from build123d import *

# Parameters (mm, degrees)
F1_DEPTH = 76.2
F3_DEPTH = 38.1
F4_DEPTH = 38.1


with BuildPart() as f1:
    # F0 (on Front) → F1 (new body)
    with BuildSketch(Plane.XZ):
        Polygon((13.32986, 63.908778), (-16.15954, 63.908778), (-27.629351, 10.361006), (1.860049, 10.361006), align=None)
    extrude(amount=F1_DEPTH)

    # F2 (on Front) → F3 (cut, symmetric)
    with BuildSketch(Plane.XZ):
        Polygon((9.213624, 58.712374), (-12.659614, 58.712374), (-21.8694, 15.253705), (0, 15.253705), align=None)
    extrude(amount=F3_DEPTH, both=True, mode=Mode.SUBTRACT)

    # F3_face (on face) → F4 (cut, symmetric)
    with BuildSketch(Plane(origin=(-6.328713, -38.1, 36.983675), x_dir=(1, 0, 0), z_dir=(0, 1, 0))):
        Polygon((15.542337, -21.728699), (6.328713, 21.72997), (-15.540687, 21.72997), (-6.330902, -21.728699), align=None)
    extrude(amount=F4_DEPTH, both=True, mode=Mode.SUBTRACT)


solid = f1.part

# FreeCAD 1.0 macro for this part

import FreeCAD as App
import Part
import Sketcher
from FreeCAD import Vector
Q = App.Units.Quantity


def add_polygon(sketch, points):
    """Adds a closed chain of lines whose ends are joined by coincident constraints."""
    first, n = sketch.GeometryCount, len(points)
    for a, b in zip(points, points[1:] + points[:1]):
        sketch.addGeometry(Part.LineSegment(App.Vector(*a, 0), App.Vector(*b, 0)), False)
    for i in range(n):
        sketch.addConstraint(Sketcher.Constraint("Coincident", first + i, 2, first + (i + 1) % n, 1))

doc = App.newDocument("Part")
params = doc.addObject("Spreadsheet::Sheet", "Params")
for row, (alias, value) in enumerate([
    ("sketch1_width", "1.161 in"),
    ("sketch1_length", "2.156 in"),
    ("pad1_length", "3 in"),
    ("sketch2_width", "0.861 in"),
    ("pocket1_length", "3 in"),
    ("sketch3_width", "0.861 in"),
    ("pocket2_length", "3 in"),
], start=1):
    params.set(f"A{row}", alias)
    params.set(f"B{row}", "=" + value)
    params.setAlias(f"B{row}", alias)

body = doc.addObject("PartDesign::Body", "Body")

# Sketch on XZ plane
sketch1 = body.newObject("Sketcher::SketchObject", "Sketch")
sketch1.AttachmentSupport = (doc.getObject("XZ_Plane"), [""])
sketch1.MapMode = "FlatFace"
add_polygon(sketch1, [(13, 64), (-16, 64), (-28, 10), (2, 10)])  # lines 0-3
sketch1.addConstraint([
    Sketcher.Constraint("Horizontal", 0),
    Sketcher.Constraint("Horizontal", 2),
    Sketcher.Constraint("Parallel", 1, 3),
    Sketcher.Constraint("DistanceX", 0, 2, 0, 1, Q("1.161 in")),
    Sketcher.Constraint("Distance", 1, Q("2.156 in")),
    Sketcher.Constraint("DistanceX", 0, 2, -1, 1, Q("16.15954 mm")),
    Sketcher.Constraint("DistanceX", 1, 2, -1, 1, Q("27.629351 mm")),
    Sketcher.Constraint("DistanceY", -1, 1, 0, 2, Q("63.908778 mm")),
])
sketch1.setExpression("Constraints[7]", "Params.sketch1_width")
sketch1.setExpression("Constraints[8]", "Params.sketch1_length")
pad1 = body.newObject("PartDesign::Pad", "Pad")
pad1.Profile = sketch1
pad1.setExpression("Length", "Params.pad1_length")

# Sketch on XZ plane
sketch2 = body.newObject("Sketcher::SketchObject", "Sketch001")
sketch2.AttachmentSupport = (doc.getObject("XZ_Plane"), [""])
sketch2.MapMode = "FlatFace"
add_polygon(sketch2, [(9, 59), (-13, 59), (-22, 15), (0, 15)])  # lines 0-3
sketch2.addConstraint([
    Sketcher.Constraint("Horizontal", 0),
    Sketcher.Constraint("Horizontal", 2),
    Sketcher.Constraint("PointOnObject", 2, 2, -2),
    Sketcher.Constraint("DistanceX", 2, 1, 2, 2, Q("0.861 in")),
    Sketcher.Constraint("DistanceX", 0, 2, 0, 1, Q("21.873238 mm")),
    Sketcher.Constraint("Distance", 3, Q("44.424619 mm")),
    Sketcher.Constraint("DistanceY", 1, 2, 0, 2, Q("43.458669 mm")),
    Sketcher.Constraint("DistanceY", -1, 1, 0, 2, Q("58.712374 mm")),
])
sketch2.setExpression("Constraints[7]", "Params.sketch2_width")
pocket1 = body.newObject("PartDesign::Pocket", "Pocket")
pocket1.Profile = sketch2
pocket1.setExpression("Length", "Params.pocket1_length")
pocket1.Midplane = True

# Sketch on XZ plane
sketch3 = body.newObject("Sketcher::SketchObject", "Sketch002")
sketch3.AttachmentSupport = (doc.getObject("XZ_Plane"), [""])
sketch3.MapMode = "FlatFace"
sketch3.AttachmentOffset = App.Placement(Vector(0, 0, 1.5 * 25.4), App.Rotation())
add_polygon(sketch3, [(9, 59), (0, 15), (-22, 15), (-13, 59)])  # lines 0-3
sketch3.addConstraint([
    Sketcher.Constraint("Horizontal", 1),
    Sketcher.Constraint("Horizontal", 3),
    Sketcher.Constraint("PointOnObject", 0, 2, -2),
    Sketcher.Constraint("DistanceX", 1, 2, 1, 1, Q("0.861 in")),
    Sketcher.Constraint("DistanceX", 3, 1, 3, 2, Q("21.873239 mm")),
    Sketcher.Constraint("Distance", 0, Q("44.424619 mm")),
    Sketcher.Constraint("DistanceY", 1, 2, 2, 2, Q("43.458669 mm")),
    Sketcher.Constraint("DistanceY", -1, 1, 0, 2, Q("15.253705 mm")),
])
sketch3.setExpression("Constraints[7]", "Params.sketch3_width")
pocket2 = body.newObject("PartDesign::Pocket", "Pocket001")
pocket2.Profile = sketch3
pocket2.setExpression("Length", "Params.pocket2_length")
pocket2.Midplane = True

doc.recompute()
